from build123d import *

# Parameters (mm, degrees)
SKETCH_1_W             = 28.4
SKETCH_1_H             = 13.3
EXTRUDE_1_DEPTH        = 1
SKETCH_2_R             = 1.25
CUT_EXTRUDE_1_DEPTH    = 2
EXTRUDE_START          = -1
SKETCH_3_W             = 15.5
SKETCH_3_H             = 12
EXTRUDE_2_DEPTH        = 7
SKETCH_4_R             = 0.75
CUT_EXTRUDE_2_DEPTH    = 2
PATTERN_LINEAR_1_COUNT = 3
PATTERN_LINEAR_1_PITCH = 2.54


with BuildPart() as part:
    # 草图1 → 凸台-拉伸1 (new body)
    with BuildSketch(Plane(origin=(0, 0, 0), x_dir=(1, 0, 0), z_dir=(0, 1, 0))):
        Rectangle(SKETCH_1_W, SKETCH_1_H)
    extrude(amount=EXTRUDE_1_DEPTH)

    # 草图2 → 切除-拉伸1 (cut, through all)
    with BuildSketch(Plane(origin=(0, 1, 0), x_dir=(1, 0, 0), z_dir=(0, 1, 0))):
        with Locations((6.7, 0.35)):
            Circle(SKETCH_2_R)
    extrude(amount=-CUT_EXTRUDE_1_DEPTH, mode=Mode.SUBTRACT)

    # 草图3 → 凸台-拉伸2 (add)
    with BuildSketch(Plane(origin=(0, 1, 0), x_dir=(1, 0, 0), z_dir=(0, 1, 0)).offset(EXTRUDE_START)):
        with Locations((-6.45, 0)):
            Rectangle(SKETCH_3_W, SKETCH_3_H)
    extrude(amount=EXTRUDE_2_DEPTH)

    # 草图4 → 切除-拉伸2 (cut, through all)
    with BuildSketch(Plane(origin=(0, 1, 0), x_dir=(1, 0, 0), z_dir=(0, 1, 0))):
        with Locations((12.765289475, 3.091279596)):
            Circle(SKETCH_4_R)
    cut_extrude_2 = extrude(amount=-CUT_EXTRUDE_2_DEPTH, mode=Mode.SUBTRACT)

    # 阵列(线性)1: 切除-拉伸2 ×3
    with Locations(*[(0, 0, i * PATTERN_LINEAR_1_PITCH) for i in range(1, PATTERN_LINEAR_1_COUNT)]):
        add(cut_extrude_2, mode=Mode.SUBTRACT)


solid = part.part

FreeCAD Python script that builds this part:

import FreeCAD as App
import Part
import Sketcher
from FreeCAD import Vector


def add_polygon(sketch, points):
    """Adds a closed chain of lines whose ends are joined by coincident constraints."""
    first, n = sketch.GeometryCount, len(points)
    for a, b in zip(points, points[1:] + points[:1]):
        sketch.addGeometry(Part.LineSegment(App.Vector(*a, 0), App.Vector(*b, 0)), False)
    for i in range(n):
        sketch.addConstraint(Sketcher.Constraint("Coincident", first + i, 2, first + (i + 1) % n, 1))

doc = App.newDocument("Part")
params = doc.addObject("Spreadsheet::Sheet", "Params")
for row, (alias, value) in enumerate([
    ("sketch1_width", "28.4 mm"),
    ("sketch1_height", "13.3 mm"),
    ("pad1_length", "1 mm"),
    ("sketch2_diameter", "2.5 mm"),
    ("sketch3_height", "12 mm"),
    ("sketch3_width", "15.5 mm"),
    ("pad2_length", "7 mm"),
    ("sketch4_diameter", "1.5 mm"),
    ("linearpattern_pitch", "2.54 mm"),
], start=1):
    params.set(f"A{row}", alias)
    params.set(f"B{row}", "=" + value)
    params.setAlias(f"B{row}", alias)

body = doc.addObject("PartDesign::Body", "Body")

# Sketch on XZ plane
sketch1 = doc.addObject("Sketcher::SketchObject", "Sketch")
body.addObject(sketch1)
sketch1.AttachmentSupport = (doc.XZ_Plane, [""])
sketch1.MapMode = "FlatFace"
add_polygon(sketch1, [(-14, -7), (-14, 7), (14, 7), (14, -7)])  # lines 0-3
sketch1.addConstraint(Sketcher.Constraint("Vertical", 0))
sketch1.addConstraint(Sketcher.Constraint("Horizontal", 1))
sketch1.addConstraint(Sketcher.Constraint("Vertical", 2))
sketch1.addConstraint(Sketcher.Constraint("Horizontal", 3))
sketch1.addConstraint(Sketcher.Constraint("Symmetric", 0, 2, 2, 2, -1, 1))
sketch1.addConstraint(Sketcher.Constraint("DistanceX", 1, 1, 1, 2, 28.4))
sketch1.addConstraint(Sketcher.Constraint("DistanceY", 0, 1, 0, 2, 13.3))
sketch1.setExpression("Constraints[9]", "Params.sketch1_width")
sketch1.setExpression("Constraints[10]", "Params.sketch1_height")
pad1 = doc.addObject("PartDesign::Pad", "Pad")
body.addObject(pad1)
pad1.Profile = sketch1
pad1.setExpression("Length", "Params.pad1_length")
pad1.Reversed = True

# Sketch on XZ plane
sketch2 = doc.addObject("Sketcher::SketchObject", "Sketch001")
body.addObject(sketch2)
sketch2.AttachmentSupport = (doc.XZ_Plane, [""])
sketch2.MapMode = "FlatFace"
sketch2.AttachmentOffset = App.Placement(Vector(0, 0, -1), App.Rotation())
sketch2.addGeometry(Part.Circle(Vector(6.7, -0.3, 0), Vector(0, 0, 1), 1.2), False)
sketch2.addConstraint(Sketcher.Constraint("Diameter", 0, 2.5))
sketch2.addConstraint(Sketcher.Constraint("DistanceX", -1, 1, 0, 3, 6.7))
sketch2.addConstraint(Sketcher.Constraint("DistanceY", 0, 3, -1, 1, 0.35))
sketch2.setExpression("Constraints[0]", "Params.sketch2_diameter")
pocket1 = doc.addObject("PartDesign::Pocket", "Pocket")
body.addObject(pocket1)
pocket1.Profile = sketch2
pocket1.Type = "ThroughAll"
pocket1.Reversed = True

# Sketch on XZ plane
sketch3 = doc.addObject("Sketcher::SketchObject", "Sketch002")
body.addObject(sketch3)
sketch3.AttachmentSupport = (doc.XZ_Plane, [""])
sketch3.MapMode = "FlatFace"
add_polygon(sketch3, [(-14, -6), (-14, 6), (1, 6), (1, -6)])  # lines 0-3
sketch3.addConstraint(Sketcher.Constraint("Vertical", 0))
sketch3.addConstraint(Sketcher.Constraint("Horizontal", 1))
sketch3.addConstraint(Sketcher.Constraint("Vertical", 2))
sketch3.addConstraint(Sketcher.Constraint("Horizontal", 3))
sketch3.addConstraint(Sketcher.Constraint("DistanceY", 0, 1, 0, 2, 12.0))
sketch3.addConstraint(Sketcher.Constraint("DistanceX", 1, 1, 1, 2, 15.5))
sketch3.addConstraint(Sketcher.Constraint("DistanceY", -1, 1, 0, 2, 6.0))
sketch3.addConstraint(Sketcher.Constraint("DistanceX", 0, 2, -1, 1, 14.2))
sketch3.setExpression("Constraints[8]", "Params.sketch3_height")
sketch3.setExpression("Constraints[9]", "Params.sketch3_width")
pad2 = doc.addObject("PartDesign::Pad", "Pad001")
body.addObject(pad2)
pad2.Profile = sketch3
pad2.setExpression("Length", "Params.pad2_length")
pad2.Reversed = True

# Sketch on XZ plane
sketch4 = doc.addObject("Sketcher::SketchObject", "Sketch003")
body.addObject(sketch4)
sketch4.AttachmentSupport = (doc.XZ_Plane, [""])
sketch4.MapMode = "FlatFace"
sketch4.AttachmentOffset = App.Placement(Vector(0, 0, -1), App.Rotation())
sketch4.addGeometry(Part.Circle(Vector(12.8, -3.1, 0), Vector(0, 0, 1), 0.8), False)
sketch4.addConstraint(Sketcher.Constraint("Diameter", 0, 1.5))
sketch4.addConstraint(Sketcher.Constraint("DistanceX", -1, 1, 0, 3, 12.765289))
sketch4.addConstraint(Sketcher.Constraint("DistanceY", 0, 3, -1, 1, 3.09128))
sketch4.setExpression("Constraints[0]", "Params.sketch4_diameter")
pocket2 = doc.addObject("PartDesign::Pocket", "Pocket001")
body.addObject(pocket2)
pocket2.Profile = sketch4
pocket2.Type = "ThroughAll"
pocket2.Reversed = True
doc.recompute()

linearpattern = doc.addObject("PartDesign::LinearPattern", "LinearPattern")
body.addObject(linearpattern)
linearpattern.Originals = [pocket2]
linearpattern.Direction = (doc.Z_Axis, [""])
linearpattern.Mode = "offset"
linearpattern.setExpression("Offset", "Params.linearpattern_pitch")
linearpattern.Occurrences = 3
body.Tip = linearpattern

doc.recompute()
